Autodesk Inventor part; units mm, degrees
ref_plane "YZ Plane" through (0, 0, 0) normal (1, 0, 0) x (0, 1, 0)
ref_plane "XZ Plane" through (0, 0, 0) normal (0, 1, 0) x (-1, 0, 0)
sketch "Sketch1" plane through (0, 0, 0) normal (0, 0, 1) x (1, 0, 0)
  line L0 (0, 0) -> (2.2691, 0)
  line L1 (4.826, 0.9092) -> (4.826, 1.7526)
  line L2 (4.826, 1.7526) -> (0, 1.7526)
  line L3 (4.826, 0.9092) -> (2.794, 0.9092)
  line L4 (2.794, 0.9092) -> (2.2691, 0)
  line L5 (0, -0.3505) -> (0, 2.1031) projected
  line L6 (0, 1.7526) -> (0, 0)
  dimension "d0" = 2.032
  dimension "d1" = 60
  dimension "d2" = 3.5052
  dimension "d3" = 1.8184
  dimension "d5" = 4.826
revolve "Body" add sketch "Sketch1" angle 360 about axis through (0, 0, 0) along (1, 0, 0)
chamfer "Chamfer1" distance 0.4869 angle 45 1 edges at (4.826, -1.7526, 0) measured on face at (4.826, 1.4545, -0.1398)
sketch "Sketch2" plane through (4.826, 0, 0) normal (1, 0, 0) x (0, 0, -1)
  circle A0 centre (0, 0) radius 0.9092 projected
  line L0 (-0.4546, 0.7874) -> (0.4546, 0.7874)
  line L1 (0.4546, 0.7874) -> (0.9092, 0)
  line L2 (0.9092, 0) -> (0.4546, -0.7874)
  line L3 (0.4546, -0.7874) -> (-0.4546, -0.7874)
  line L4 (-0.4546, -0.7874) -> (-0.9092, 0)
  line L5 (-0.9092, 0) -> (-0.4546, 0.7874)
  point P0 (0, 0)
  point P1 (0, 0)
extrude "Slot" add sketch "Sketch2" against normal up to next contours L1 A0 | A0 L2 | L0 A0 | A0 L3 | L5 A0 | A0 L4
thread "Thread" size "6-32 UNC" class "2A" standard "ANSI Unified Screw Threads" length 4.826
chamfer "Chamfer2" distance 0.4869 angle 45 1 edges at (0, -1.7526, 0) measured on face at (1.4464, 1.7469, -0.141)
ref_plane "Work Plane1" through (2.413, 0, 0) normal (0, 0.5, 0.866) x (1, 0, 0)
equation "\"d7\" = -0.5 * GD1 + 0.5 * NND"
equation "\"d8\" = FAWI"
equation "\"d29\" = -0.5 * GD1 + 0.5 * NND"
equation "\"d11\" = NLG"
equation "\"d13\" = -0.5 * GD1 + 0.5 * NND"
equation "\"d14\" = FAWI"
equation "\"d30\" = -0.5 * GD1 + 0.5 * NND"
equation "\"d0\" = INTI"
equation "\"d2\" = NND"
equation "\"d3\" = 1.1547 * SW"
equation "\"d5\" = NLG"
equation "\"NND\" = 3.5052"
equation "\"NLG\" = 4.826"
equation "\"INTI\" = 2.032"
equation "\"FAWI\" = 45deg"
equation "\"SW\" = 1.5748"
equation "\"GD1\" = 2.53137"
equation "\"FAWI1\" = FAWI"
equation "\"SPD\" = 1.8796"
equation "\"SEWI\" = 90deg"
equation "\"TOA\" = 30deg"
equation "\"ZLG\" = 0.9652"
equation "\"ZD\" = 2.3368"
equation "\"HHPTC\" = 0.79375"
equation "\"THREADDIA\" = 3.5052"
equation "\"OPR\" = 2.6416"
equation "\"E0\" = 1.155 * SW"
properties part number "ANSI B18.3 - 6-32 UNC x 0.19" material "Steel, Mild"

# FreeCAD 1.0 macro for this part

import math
import FreeCAD as App
import Part
import Sketcher

V = App.Vector
Q = App.Units.Quantity


def edges_at(feature, points):
    """Names of the edges that pass closest to the given points."""
    edges = feature.Shape.Edges
    near = lambda p: min(range(len(edges)), key=lambda i: edges[i].distToShape(Part.Vertex(*p))[0])
    return sorted({f"Edge{near(p) + 1}" for p in points})


def add_polygon(sketch, points):
    """Adds a closed chain of lines whose ends are joined by coincident constraints."""
    first, n = sketch.GeometryCount, len(points)
    for a, b in zip(points, points[1:] + points[:1]):
        sketch.addGeometry(Part.LineSegment(App.Vector(*a, 0), App.Vector(*b, 0)), False)
    for i in range(n):
        sketch.addConstraint(Sketcher.Constraint("Coincident", first + i, 2, first + (i + 1) % n, 1))

doc = App.newDocument("Part")
params = doc.addObject("Spreadsheet::Sheet", "Params")
for row, (alias, value) in enumerate([
    ("sketch1_width", "0.08 in"),
    ("sketch1_width2", "0.19 in"),
    ("sketch1_height", "0.069 in"),
    ("revolution_angle", "360 deg"),
    ("chamfer_size", "0.4869 mm"),
    ("chamfer2_size", "0.4869 mm"),
], start=1):
    params.set(f"A{row}", alias)
    params.set(f"B{row}", "=" + value)
    params.setAlias(f"B{row}", alias)

body = doc.addObject("PartDesign::Body", "Body")

sketch1 = body.newObject("Sketcher::SketchObject", "Sketch")
sketch1.AttachmentSupport = (doc.getObject("XY_Plane"), [""])
sketch1.MapMode = "FlatFace"
add_polygon(sketch1, [(0, 1.8), (0, 0), (2.3, 0), (2.8, 0.9), (4.8, 0.9), (4.8, 1.8)])
sketch1.addConstraint(Sketcher.Constraint("Vertical", 0))
sketch1.addConstraint(Sketcher.Constraint("Horizontal", 1))
sketch1.addConstraint(Sketcher.Constraint("Horizontal", 3))
sketch1.addConstraint(Sketcher.Constraint("Vertical", 4))
sketch1.addConstraint(Sketcher.Constraint("Horizontal", 5))
sketch1.addConstraint(Sketcher.Constraint("Coincident", 0, 2, -1, 1))
sketch1.addConstraint(Sketcher.Constraint("DistanceX", 3, 1, 3, 2, Q("0.08 in")))
sketch1.addConstraint(Sketcher.Constraint("DistanceX", 5, 2, 5, 1, Q("0.19 in")))
sketch1.addConstraint(Sketcher.Constraint("DistanceY", 0, 2, 0, 1, Q("0.069 in")))
sketch1.addConstraint(Sketcher.Constraint("DistanceY", 4, 1, 4, 2, Q("0.0332 in")))
sketch1.addConstraint(Sketcher.Constraint("DistanceX", 1, 1, 1, 2, 2.269))
sketch1.setExpression("Constraints[12]", "Params.sketch1_width")
sketch1.setExpression("Constraints[13]", "Params.sketch1_width2")
sketch1.setExpression("Constraints[14]", "Params.sketch1_height")
revolution = body.newObject("PartDesign::Revolution", "Revolution")
revolution.Profile = sketch1
revolution.ReferenceAxis = (sketch1, ["H_Axis"])
revolution.setExpression("Angle", "Params.revolution_angle")
doc.recompute()

chamfer = body.newObject("PartDesign::Chamfer", "Chamfer")
chamfer.Base = (revolution, edges_at(revolution, [(4.826, -1.753, 0)]))
chamfer.setExpression("Size", "Params.chamfer_size")

sketch2 = body.newObject("Sketcher::SketchObject", "Sketch001")
sketch2.AttachmentSupport = (doc.getObject("YZ_Plane"), [""])
sketch2.MapMode = "FlatFace"
sketch2.AttachmentOffset = App.Placement(V(0, 0, 0.19 * 25.4), App.Rotation())
sketch2.addGeometry(Part.LineSegment(V(0.8, -0.5, 0), V(0, -0.9, 0)), False)
sketch2.addGeometry(Part.ArcOfCircle(Part.Circle(V(0, 0, 0), V(0, 0, 1), 0.9), math.radians(-90), math.radians(-30)), False)
sketch2.addGeometry(Part.ArcOfCircle(Part.Circle(V(0, 0, 0), V(0, 0, 1), 0.9), math.radians(-150), math.radians(-90)), False)
sketch2.addGeometry(Part.LineSegment(V(0, -0.9, 0), V(-0.8, -0.5, 0)), False)
sketch2.addGeometry(Part.LineSegment(V(0.8, 0.5, 0), V(0.8, -0.5, 0)), False)
sketch2.addGeometry(Part.ArcOfCircle(Part.Circle(V(0, 0, 0), V(0, 0, 1), 0.9), math.radians(-30), math.radians(30)), False)
sketch2.addGeometry(Part.ArcOfCircle(Part.Circle(V(0, 0, 0), V(0, 0, 1), 0.9), math.radians(150), math.radians(210)), False)
sketch2.addGeometry(Part.LineSegment(V(-0.8, 0.5, 0), V(-0.8, -0.5, 0)), False)
sketch2.addGeometry(Part.LineSegment(V(0, 0.9, 0), V(0.8, 0.5, 0)), False)
sketch2.addGeometry(Part.ArcOfCircle(Part.Circle(V(0, 0, 0), V(0, 0, 1), 0.9), math.radians(30), math.radians(90)), False)
sketch2.addGeometry(Part.ArcOfCircle(Part.Circle(V(0, 0, 0), V(0, 0, 1), 0.9), math.radians(90), math.radians(150)), False)
sketch2.addGeometry(Part.LineSegment(V(0, 0.9, 0), V(-0.8, 0.5, 0)), False)
sketch2.addConstraint(Sketcher.Constraint("Coincident", 0, 1, 1, 2))
sketch2.addConstraint(Sketcher.Constraint("Coincident", 1, 1, 0, 2))
sketch2.addConstraint(Sketcher.Constraint("Coincident", 2, 1, 3, 2))
sketch2.addConstraint(Sketcher.Constraint("Coincident", 3, 1, 2, 2))
sketch2.addConstraint(Sketcher.Constraint("Coincident", 4, 1, 5, 2))
sketch2.addConstraint(Sketcher.Constraint("Coincident", 5, 1, 4, 2))
sketch2.addConstraint(Sketcher.Constraint("Coincident", 6, 1, 7, 1))
sketch2.addConstraint(Sketcher.Constraint("Coincident", 7, 2, 6, 2))
sketch2.addConstraint(Sketcher.Constraint("Coincident", 8, 1, 9, 2))
sketch2.addConstraint(Sketcher.Constraint("Coincident", 9, 1, 8, 2))
sketch2.addConstraint(Sketcher.Constraint("Coincident", 10, 1, 11, 1))
sketch2.addConstraint(Sketcher.Constraint("Coincident", 11, 2, 10, 2))
sketch2.addConstraint(Sketcher.Constraint("Vertical", 4))
sketch2.addConstraint(Sketcher.Constraint("Vertical", 7))
sketch2.addConstraint(Sketcher.Constraint("Coincident", 1, 3, -1, 1))
sketch2.addConstraint(Sketcher.Constraint("Coincident", 2, 3, -1, 1))
sketch2.addConstraint(Sketcher.Constraint("Coincident", 5, 3, -1, 1))
sketch2.addConstraint(Sketcher.Constraint("Coincident", 6, 3, -1, 1))
sketch2.addConstraint(Sketcher.Constraint("Coincident", 9, 3, -1, 1))
sketch2.addConstraint(Sketcher.Constraint("Coincident", 10, 3, -1, 1))
sketch2.addConstraint(Sketcher.Constraint("Coincident", 3, 1, 1, 1))
sketch2.addConstraint(Sketcher.Constraint("Coincident", 5, 1, 0, 1))
sketch2.addConstraint(Sketcher.Constraint("Coincident", 7, 2, 2, 1))
sketch2.addConstraint(Sketcher.Constraint("Coincident", 9, 1, 4, 1))
sketch2.addConstraint(Sketcher.Constraint("Coincident", 10, 1, 8, 1))
sketch2.addConstraint(Sketcher.Constraint("PointOnObject", 1, 1, -2))
sketch2.addConstraint(Sketcher.Constraint("PointOnObject", 8, 1, -2))
sketch2.addConstraint(Sketcher.Constraint("Parallel", 3, 8))
sketch2.addConstraint(Sketcher.Constraint("Parallel", 0, 11))
sketch2.addConstraint(Sketcher.Constraint("Angle", 0, Q("-150.0003 deg")))
sketch2.addConstraint(Sketcher.Constraint("Radius", 1, Q("0.0358 in")))
pad1 = body.newObject("PartDesign::Pad", "Pad")
pad1.Profile = sketch2
pad1.Type = "UpToFirst"
pad1.Reversed = True
doc.recompute()

chamfer2 = body.newObject("PartDesign::Chamfer", "Chamfer001")
chamfer2.Base = (pad1, edges_at(pad1, [(0, -1.753, 0)]))
chamfer2.setExpression("Size", "Params.chamfer2_size")

doc.recompute()
